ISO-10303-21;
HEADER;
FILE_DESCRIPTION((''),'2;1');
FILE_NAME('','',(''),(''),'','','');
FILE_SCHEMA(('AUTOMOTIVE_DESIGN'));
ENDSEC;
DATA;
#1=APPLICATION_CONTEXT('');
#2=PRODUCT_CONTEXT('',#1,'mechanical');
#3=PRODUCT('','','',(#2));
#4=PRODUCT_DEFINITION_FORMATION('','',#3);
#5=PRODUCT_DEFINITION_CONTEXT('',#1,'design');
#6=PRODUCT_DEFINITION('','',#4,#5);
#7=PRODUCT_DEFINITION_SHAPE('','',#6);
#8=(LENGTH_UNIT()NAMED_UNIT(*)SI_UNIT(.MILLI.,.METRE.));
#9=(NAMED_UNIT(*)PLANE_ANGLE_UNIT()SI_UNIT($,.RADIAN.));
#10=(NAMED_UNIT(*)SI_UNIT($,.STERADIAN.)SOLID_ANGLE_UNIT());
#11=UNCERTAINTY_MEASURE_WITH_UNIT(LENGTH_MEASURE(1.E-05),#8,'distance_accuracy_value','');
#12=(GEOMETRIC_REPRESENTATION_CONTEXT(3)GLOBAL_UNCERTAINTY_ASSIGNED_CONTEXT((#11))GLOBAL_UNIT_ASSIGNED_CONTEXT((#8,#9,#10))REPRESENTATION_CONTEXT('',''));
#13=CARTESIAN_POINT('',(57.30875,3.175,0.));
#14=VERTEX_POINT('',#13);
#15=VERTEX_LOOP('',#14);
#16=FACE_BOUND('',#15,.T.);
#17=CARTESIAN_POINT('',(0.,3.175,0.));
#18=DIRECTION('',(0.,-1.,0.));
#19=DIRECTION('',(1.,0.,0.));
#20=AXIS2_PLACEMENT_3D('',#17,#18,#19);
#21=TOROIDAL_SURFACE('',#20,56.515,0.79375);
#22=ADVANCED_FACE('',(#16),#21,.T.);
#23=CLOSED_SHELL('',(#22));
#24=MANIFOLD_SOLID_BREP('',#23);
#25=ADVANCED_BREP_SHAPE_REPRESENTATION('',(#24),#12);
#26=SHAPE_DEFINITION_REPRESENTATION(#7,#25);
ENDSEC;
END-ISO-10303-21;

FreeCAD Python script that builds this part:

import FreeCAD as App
import Part
import Sketcher
Q = App.Units.Quantity

doc = App.newDocument("Part")
params = doc.addObject("Spreadsheet::Sheet", "Params")
for row, (alias, value) in enumerate([
    ("sketch1_diameter", "0.0625 in"),
    ("revolution_angle", "360 deg"),
], start=1):
    params.set(f"A{row}", alias)
    params.set(f"B{row}", "=" + value)
    params.setAlias(f"B{row}", alias)

body = doc.addObject("PartDesign::Body", "Body")

sketch1 = body.newObject("Sketcher::SketchObject", "Sketch")
sketch1.AttachmentSupport = (doc.getObject("XY_Plane"), [""])
sketch1.MapMode = "FlatFace"
sketch1.addGeometry(Part.Circle(App.Vector(56.515, 3.175, 0), App.Vector(0, 0, 1), 0.79375), False)
sketch1.addConstraint([
    Sketcher.Constraint("Diameter", 0, Q("0.0625 in")),
    Sketcher.Constraint("DistanceX", -1, 1, 0, 3, Q("2.225 in")),
    Sketcher.Constraint("DistanceY", -1, 1, 0, 3, Q("0.125 in")),
])
sketch1.setExpression("Constraints[0]", "Params.sketch1_diameter")
revolution = body.newObject("PartDesign::Revolution", "Revolution")
revolution.Profile = sketch1
revolution.ReferenceAxis = (sketch1, ["V_Axis"])
revolution.setExpression("Angle", "Params.revolution_angle")

doc.recompute()
